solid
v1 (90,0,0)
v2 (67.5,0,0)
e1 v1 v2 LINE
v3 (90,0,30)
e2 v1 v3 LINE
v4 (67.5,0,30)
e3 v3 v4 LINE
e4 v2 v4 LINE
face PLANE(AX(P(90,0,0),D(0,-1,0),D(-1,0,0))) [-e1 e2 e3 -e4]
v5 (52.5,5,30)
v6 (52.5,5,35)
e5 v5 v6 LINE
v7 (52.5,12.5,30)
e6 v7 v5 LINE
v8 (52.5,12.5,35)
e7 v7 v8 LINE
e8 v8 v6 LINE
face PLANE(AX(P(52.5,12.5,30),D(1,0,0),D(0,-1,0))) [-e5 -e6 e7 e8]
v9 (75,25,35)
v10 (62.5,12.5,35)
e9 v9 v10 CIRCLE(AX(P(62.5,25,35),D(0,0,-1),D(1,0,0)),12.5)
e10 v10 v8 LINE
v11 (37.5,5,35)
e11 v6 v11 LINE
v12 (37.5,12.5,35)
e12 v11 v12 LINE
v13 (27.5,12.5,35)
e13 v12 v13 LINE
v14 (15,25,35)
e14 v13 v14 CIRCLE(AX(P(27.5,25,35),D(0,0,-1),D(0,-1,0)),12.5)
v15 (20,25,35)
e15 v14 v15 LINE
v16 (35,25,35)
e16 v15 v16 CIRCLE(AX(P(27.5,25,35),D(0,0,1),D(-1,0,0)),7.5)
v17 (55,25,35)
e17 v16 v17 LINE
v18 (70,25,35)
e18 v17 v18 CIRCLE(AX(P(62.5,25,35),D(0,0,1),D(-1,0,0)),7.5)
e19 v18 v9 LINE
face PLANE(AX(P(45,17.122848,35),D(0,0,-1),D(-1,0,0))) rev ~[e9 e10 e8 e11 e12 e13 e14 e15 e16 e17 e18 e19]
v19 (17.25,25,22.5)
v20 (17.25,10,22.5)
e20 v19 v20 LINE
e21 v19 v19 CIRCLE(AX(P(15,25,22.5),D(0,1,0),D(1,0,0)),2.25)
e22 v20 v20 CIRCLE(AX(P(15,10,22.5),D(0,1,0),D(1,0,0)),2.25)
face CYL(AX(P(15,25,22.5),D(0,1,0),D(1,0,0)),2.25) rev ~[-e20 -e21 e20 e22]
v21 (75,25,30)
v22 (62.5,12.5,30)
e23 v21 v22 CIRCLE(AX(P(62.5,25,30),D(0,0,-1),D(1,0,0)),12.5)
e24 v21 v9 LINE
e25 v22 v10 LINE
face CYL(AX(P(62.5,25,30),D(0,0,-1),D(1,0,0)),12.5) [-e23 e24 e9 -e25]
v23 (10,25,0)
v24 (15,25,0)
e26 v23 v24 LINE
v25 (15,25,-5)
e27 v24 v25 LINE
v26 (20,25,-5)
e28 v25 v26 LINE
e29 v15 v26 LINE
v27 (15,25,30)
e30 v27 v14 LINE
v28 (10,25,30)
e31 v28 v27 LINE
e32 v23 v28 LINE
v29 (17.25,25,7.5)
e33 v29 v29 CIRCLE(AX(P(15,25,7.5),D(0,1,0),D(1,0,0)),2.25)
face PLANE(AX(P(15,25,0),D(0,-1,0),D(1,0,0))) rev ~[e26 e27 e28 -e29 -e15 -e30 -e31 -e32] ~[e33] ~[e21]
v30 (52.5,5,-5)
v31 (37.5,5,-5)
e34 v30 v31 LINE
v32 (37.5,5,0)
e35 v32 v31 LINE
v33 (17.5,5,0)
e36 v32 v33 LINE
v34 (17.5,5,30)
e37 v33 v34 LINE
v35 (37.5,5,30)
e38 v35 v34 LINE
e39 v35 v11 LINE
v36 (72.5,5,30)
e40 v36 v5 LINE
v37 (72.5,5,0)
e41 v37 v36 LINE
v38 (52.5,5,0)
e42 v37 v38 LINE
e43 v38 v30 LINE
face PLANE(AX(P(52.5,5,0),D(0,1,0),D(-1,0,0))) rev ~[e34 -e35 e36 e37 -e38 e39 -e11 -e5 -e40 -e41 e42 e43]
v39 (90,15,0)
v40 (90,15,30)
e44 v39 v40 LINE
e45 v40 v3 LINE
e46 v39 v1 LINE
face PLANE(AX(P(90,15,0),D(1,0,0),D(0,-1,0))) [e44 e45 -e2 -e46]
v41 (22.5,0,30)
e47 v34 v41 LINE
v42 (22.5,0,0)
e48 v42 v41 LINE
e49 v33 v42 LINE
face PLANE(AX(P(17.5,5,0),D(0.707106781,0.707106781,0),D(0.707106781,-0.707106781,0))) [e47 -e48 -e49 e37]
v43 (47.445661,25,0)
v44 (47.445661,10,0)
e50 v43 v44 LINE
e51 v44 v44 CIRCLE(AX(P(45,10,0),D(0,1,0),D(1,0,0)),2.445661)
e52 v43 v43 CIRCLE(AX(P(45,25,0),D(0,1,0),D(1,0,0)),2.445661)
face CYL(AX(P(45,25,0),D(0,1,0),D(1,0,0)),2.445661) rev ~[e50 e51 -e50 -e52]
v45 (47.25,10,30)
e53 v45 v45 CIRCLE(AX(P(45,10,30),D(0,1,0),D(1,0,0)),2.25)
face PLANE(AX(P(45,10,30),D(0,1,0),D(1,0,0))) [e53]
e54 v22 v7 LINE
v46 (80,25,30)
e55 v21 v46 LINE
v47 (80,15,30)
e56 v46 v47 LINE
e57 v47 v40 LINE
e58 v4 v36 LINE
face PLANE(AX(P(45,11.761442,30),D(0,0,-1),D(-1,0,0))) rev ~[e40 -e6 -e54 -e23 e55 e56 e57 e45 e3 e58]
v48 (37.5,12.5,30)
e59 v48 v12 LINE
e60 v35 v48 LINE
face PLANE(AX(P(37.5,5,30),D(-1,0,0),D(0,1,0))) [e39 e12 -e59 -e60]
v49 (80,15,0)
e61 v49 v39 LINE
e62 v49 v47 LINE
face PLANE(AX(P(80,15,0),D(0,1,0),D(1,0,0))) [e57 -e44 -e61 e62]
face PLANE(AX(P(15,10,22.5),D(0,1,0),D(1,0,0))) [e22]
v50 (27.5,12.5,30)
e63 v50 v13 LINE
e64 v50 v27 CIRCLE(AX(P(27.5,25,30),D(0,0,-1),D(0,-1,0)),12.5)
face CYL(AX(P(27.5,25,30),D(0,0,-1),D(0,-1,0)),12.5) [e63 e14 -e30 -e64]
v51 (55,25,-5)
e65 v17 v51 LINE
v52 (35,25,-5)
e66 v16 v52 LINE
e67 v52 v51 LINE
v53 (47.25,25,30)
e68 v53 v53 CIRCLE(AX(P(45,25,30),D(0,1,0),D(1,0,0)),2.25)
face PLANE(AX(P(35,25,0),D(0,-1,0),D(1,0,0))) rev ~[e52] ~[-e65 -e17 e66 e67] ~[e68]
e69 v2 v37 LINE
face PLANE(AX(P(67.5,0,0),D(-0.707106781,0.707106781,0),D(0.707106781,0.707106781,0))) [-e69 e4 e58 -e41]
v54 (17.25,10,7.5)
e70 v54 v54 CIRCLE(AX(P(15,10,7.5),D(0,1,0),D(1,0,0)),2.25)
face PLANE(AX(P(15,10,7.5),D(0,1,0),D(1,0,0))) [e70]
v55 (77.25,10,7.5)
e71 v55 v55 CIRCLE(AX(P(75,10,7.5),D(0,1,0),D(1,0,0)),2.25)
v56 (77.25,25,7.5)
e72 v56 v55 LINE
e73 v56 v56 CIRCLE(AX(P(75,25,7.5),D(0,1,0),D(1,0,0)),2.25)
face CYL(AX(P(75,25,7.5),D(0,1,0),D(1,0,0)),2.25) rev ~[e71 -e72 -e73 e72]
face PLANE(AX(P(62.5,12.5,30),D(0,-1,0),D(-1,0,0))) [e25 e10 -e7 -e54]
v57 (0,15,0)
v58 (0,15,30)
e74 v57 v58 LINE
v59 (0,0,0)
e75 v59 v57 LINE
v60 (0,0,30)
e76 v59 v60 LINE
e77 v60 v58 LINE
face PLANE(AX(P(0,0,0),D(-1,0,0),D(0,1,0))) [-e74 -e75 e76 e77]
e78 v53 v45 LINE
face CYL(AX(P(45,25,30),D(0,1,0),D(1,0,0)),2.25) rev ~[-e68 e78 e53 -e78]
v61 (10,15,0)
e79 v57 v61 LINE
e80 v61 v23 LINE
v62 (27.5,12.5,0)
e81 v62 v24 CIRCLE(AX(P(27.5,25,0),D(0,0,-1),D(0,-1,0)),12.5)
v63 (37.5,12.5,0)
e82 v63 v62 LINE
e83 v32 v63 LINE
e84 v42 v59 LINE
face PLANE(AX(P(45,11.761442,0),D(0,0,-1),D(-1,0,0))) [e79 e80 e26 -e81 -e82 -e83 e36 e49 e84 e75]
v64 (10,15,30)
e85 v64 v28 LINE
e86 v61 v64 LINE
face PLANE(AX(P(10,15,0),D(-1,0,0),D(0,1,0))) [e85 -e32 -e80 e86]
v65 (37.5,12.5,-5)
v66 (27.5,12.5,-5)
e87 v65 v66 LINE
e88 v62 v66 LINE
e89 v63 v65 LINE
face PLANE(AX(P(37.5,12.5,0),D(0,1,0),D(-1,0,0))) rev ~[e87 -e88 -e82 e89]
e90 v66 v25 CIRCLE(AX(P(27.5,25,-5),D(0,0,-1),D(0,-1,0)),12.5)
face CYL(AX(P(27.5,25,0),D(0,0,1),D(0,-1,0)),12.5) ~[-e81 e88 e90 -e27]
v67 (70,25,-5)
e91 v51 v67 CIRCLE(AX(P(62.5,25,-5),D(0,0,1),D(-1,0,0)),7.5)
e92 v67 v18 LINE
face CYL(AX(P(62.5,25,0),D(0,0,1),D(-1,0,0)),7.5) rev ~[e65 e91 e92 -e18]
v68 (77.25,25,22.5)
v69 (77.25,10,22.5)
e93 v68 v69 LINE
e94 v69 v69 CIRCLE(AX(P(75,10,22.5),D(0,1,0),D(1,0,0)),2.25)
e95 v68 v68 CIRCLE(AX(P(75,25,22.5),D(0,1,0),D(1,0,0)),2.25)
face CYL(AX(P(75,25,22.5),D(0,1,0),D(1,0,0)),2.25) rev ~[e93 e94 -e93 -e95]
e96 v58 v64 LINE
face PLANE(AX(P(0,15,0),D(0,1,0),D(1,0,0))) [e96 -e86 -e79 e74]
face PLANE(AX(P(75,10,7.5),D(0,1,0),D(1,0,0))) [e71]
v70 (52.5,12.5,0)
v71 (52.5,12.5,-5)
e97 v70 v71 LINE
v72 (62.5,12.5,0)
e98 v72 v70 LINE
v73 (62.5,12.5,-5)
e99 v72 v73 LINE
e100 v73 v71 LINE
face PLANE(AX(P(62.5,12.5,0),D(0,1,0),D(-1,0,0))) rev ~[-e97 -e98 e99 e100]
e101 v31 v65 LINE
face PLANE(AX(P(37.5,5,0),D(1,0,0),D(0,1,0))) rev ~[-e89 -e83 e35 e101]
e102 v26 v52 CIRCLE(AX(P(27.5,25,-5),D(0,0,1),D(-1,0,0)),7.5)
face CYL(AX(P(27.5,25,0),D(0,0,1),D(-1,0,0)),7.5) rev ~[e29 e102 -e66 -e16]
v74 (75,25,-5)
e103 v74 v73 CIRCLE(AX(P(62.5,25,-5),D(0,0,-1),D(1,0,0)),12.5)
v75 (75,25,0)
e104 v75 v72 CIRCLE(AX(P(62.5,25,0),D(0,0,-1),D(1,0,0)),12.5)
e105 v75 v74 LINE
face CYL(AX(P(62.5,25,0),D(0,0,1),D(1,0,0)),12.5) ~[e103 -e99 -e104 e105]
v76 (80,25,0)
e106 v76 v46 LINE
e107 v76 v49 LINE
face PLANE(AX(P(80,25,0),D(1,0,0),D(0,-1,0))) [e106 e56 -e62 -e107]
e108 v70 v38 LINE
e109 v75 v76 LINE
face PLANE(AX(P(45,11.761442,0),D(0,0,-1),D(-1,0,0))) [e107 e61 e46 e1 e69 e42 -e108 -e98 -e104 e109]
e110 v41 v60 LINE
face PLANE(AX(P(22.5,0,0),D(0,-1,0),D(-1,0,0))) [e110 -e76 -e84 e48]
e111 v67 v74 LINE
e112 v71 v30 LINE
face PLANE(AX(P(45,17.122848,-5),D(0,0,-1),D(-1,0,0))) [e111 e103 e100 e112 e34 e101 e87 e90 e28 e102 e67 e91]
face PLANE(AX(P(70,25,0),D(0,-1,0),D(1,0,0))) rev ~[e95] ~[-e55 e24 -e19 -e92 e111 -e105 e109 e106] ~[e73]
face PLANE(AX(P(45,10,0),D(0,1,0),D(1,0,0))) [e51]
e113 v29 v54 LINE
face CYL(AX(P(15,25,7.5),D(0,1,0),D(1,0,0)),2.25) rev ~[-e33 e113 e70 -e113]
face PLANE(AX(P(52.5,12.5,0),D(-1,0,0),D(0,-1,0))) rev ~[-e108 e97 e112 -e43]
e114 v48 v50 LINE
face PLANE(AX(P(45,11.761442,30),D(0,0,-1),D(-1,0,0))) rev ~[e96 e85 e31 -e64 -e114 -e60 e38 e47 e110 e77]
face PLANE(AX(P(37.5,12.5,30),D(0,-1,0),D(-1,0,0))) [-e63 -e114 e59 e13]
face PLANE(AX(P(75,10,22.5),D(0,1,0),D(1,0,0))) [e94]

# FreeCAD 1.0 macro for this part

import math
import FreeCAD as App
import Part
import Sketcher
Q = App.Units.Quantity

doc = App.newDocument("Part")
body = doc.addObject("PartDesign::Body", "Body")

sketch1 = body.newObject("Sketcher::SketchObject", "Sketch")
sketch1.AttachmentSupport = (doc.getObject("XY_Plane"), [""])
sketch1.MapMode = "FlatFace"
sketch1.addGeometry(Part.LineSegment(App.Vector(0, 15, 0), App.Vector(0, 0, 0)), False)
sketch1.addGeometry(Part.LineSegment(App.Vector(0, 0, 0), App.Vector(22, 0, 0)), False)
sketch1.addGeometry(Part.LineSegment(App.Vector(22, 0, 0), App.Vector(18, 5, 0)), False)
sketch1.addGeometry(Part.LineSegment(App.Vector(18, 5, 0), App.Vector(72, 5, 0)), False)
sketch1.addGeometry(Part.LineSegment(App.Vector(72, 5, 0), App.Vector(68, 0, 0)), False)
sketch1.addGeometry(Part.LineSegment(App.Vector(68, 0, 0), App.Vector(90, 0, 0)), False)
sketch1.addGeometry(Part.LineSegment(App.Vector(90, 0, 0), App.Vector(90, 15, 0)), False)
sketch1.addGeometry(Part.LineSegment(App.Vector(90, 15, 0), App.Vector(80, 15, 0)), False)
sketch1.addGeometry(Part.LineSegment(App.Vector(80, 15, 0), App.Vector(80, 25, 0)), False)
sketch1.addGeometry(Part.LineSegment(App.Vector(80, 25, 0), App.Vector(70, 25, 0)), False)
sketch1.addGeometry(Part.ArcOfCircle(Part.Circle(App.Vector(62, 25, 0), App.Vector(0, 0, 1), 8), math.radians(180), math.radians(360)), False)
sketch1.addGeometry(Part.LineSegment(App.Vector(55, 25, 0), App.Vector(35, 25, 0)), False)
sketch1.addGeometry(Part.ArcOfCircle(Part.Circle(App.Vector(28, 25, 0), App.Vector(0, 0, 1), 8), math.radians(180), math.radians(360)), False)
sketch1.addGeometry(Part.LineSegment(App.Vector(20, 25, 0), App.Vector(10, 25, 0)), False)
sketch1.addGeometry(Part.LineSegment(App.Vector(10, 25, 0), App.Vector(10, 15, 0)), False)
sketch1.addGeometry(Part.LineSegment(App.Vector(10, 15, 0), App.Vector(0, 15, 0)), False)
sketch1.addConstraint(Sketcher.Constraint("Coincident", 0, 2, 1, 1))
sketch1.addConstraint(Sketcher.Constraint("Coincident", 1, 2, 2, 1))
sketch1.addConstraint(Sketcher.Constraint("Coincident", 2, 2, 3, 1))
sketch1.addConstraint(Sketcher.Constraint("Coincident", 3, 2, 4, 1))
sketch1.addConstraint(Sketcher.Constraint("Coincident", 4, 2, 5, 1))
sketch1.addConstraint(Sketcher.Constraint("Coincident", 5, 2, 6, 1))
sketch1.addConstraint(Sketcher.Constraint("Coincident", 6, 2, 7, 1))
sketch1.addConstraint(Sketcher.Constraint("Coincident", 7, 2, 8, 1))
sketch1.addConstraint(Sketcher.Constraint("Coincident", 8, 2, 9, 1))
sketch1.addConstraint(Sketcher.Constraint("Coincident", 9, 2, 10, 2))
sketch1.addConstraint(Sketcher.Constraint("Coincident", 10, 1, 11, 1))
sketch1.addConstraint(Sketcher.Constraint("Coincident", 11, 2, 12, 2))
sketch1.addConstraint(Sketcher.Constraint("Coincident", 12, 1, 13, 1))
sketch1.addConstraint(Sketcher.Constraint("Coincident", 13, 2, 14, 1))
sketch1.addConstraint(Sketcher.Constraint("Coincident", 14, 2, 15, 1))
sketch1.addConstraint(Sketcher.Constraint("Coincident", 15, 2, 0, 1))
sketch1.addConstraint(Sketcher.Constraint("Vertical", 0))
sketch1.addConstraint(Sketcher.Constraint("Horizontal", 1))
sketch1.addConstraint(Sketcher.Constraint("Horizontal", 3))
sketch1.addConstraint(Sketcher.Constraint("Horizontal", 5))
sketch1.addConstraint(Sketcher.Constraint("Vertical", 6))
sketch1.addConstraint(Sketcher.Constraint("Horizontal", 7))
sketch1.addConstraint(Sketcher.Constraint("Vertical", 8))
sketch1.addConstraint(Sketcher.Constraint("Horizontal", 9))
sketch1.addConstraint(Sketcher.Constraint("Horizontal", 11))
sketch1.addConstraint(Sketcher.Constraint("Horizontal", 13))
sketch1.addConstraint(Sketcher.Constraint("Vertical", 14))
sketch1.addConstraint(Sketcher.Constraint("Horizontal", 15))
sketch1.addConstraint(Sketcher.Constraint("Coincident", 0, 2, -1, 1))
sketch1.addConstraint(Sketcher.Constraint("Equal", 10, 12))
sketch1.addConstraint(Sketcher.Constraint("PointOnObject", 4, 2, -1))
sketch1.addConstraint(Sketcher.Constraint("Perpendicular", 2, 4))
sketch1.addConstraint(Sketcher.Constraint("Horizontal", 10, 3, 12, 3))
sketch1.addConstraint(Sketcher.Constraint("Horizontal", 12, 3, 8, 2))
sketch1.addConstraint(Sketcher.Constraint("Horizontal", 9, 2, 10, 1))
sketch1.addConstraint(Sketcher.Constraint("Horizontal", 11, 2, 12, 1))
sketch1.addConstraint(Sketcher.Constraint("Horizontal", 7, 2, 14, 2))
sketch1.addConstraint(Sketcher.Constraint("Equal", 1, 5))
sketch1.addConstraint(Sketcher.Constraint("Equal", 7, 9))
sketch1.addConstraint(Sketcher.Constraint("Equal", 9, 13))
sketch1.addConstraint(Sketcher.Constraint("Equal", 13, 15))
sketch1.addConstraint(Sketcher.Constraint("Equal", 15, 8))
sketch1.addConstraint(Sketcher.Constraint("Equal", 2, 4))
sketch1.addConstraint(Sketcher.Constraint("Radius", 10, Q("7.5 mm")))
sketch1.addConstraint(Sketcher.Constraint("DistanceX", 3, 1, 3, 2, Q("55 mm")))
sketch1.addConstraint(Sketcher.Constraint("DistanceX", 7, 2, 7, 1, Q("10 mm")))
sketch1.addConstraint(Sketcher.Constraint("DistanceX", 11, 2, 11, 1, Q("20 mm")))
sketch1.addConstraint(Sketcher.Constraint("DistanceY", 0, 2, 0, 1, Q("15 mm")))
sketch1.addConstraint(Sketcher.Constraint("DistanceX", 1, 1, 1, 2, Q("22.5 mm")))
pad1 = body.newObject("PartDesign::Pad", "Pad")
pad1.Profile = sketch1
pad1.Length = 30

sketch2 = body.newObject("Sketcher::SketchObject", "Sketch001")
sketch2.AttachmentSupport = (doc.getObject("XY_Plane"), [""])
sketch2.MapMode = "FlatFace"
sketch2.AttachmentOffset = App.Placement(App.Vector(0, 0, 30), App.Rotation())
sketch2.addGeometry(Part.LineSegment(App.Vector(75, 25, 0), App.Vector(70, 25, 0)), False)
sketch2.addGeometry(Part.ArcOfCircle(Part.Circle(App.Vector(62, 25, 0), App.Vector(0, 0, 1), 8), math.radians(180), math.radians(360)), False)
sketch2.addGeometry(Part.LineSegment(App.Vector(55, 25, 0), App.Vector(35, 25, 0)), False)
sketch2.addGeometry(Part.ArcOfCircle(Part.Circle(App.Vector(28, 25, 0), App.Vector(0, 0, 1), 8), math.radians(180), math.radians(360)), False)
sketch2.addGeometry(Part.LineSegment(App.Vector(20, 25, 0), App.Vector(15, 25, 0)), False)
sketch2.addGeometry(Part.ArcOfCircle(Part.Circle(App.Vector(27, 25, 0), App.Vector(0, 0, 1), 12), math.radians(180), math.radians(270)), False)
sketch2.addGeometry(Part.LineSegment(App.Vector(28, 12, 0), App.Vector(38, 12, 0)), False)
sketch2.addGeometry(Part.LineSegment(App.Vector(38, 12, 0), App.Vector(38, 5, 0)), False)
sketch2.addGeometry(Part.LineSegment(App.Vector(38, 5, 0), App.Vector(52, 5, 0)), False)
sketch2.addGeometry(Part.LineSegment(App.Vector(52, 5, 0), App.Vector(52, 12, 0)), False)
sketch2.addGeometry(Part.LineSegment(App.Vector(52, 12, 0), App.Vector(62, 12, 0)), False)
sketch2.addGeometry(Part.ArcOfCircle(Part.Circle(App.Vector(63, 25, 0), App.Vector(0, 0, 1), 12), math.radians(-90), math.radians(0)), False)
sketch2.addConstraint(Sketcher.Constraint("Coincident", 0, 2, 1, 2))
sketch2.addConstraint(Sketcher.Constraint("Coincident", 1, 1, 2, 1))
sketch2.addConstraint(Sketcher.Constraint("Coincident", 2, 2, 3, 2))
sketch2.addConstraint(Sketcher.Constraint("Coincident", 3, 1, 4, 1))
sketch2.addConstraint(Sketcher.Constraint("Coincident", 4, 2, 5, 1))
sketch2.addConstraint(Sketcher.Constraint("Tangent", 5, 2, 6, 1))
sketch2.addConstraint(Sketcher.Constraint("Coincident", 6, 2, 7, 1))
sketch2.addConstraint(Sketcher.Constraint("Coincident", 7, 2, 8, 1))
sketch2.addConstraint(Sketcher.Constraint("Coincident", 8, 2, 9, 1))
sketch2.addConstraint(Sketcher.Constraint("Coincident", 9, 2, 10, 1))
sketch2.addConstraint(Sketcher.Constraint("Tangent", 10, 2, 11, 1))
sketch2.addConstraint(Sketcher.Constraint("Coincident", 11, 2, 0, 1))
sketch2.addConstraint(Sketcher.Constraint("Horizontal", 0))
sketch2.addConstraint(Sketcher.Constraint("Horizontal", 2))
sketch2.addConstraint(Sketcher.Constraint("Horizontal", 4))
sketch2.addConstraint(Sketcher.Constraint("Horizontal", 6))
sketch2.addConstraint(Sketcher.Constraint("Vertical", 7))
sketch2.addConstraint(Sketcher.Constraint("Horizontal", 8))
sketch2.addConstraint(Sketcher.Constraint("Vertical", 9))
sketch2.addConstraint(Sketcher.Constraint("Horizontal", 10))
sketch2.addConstraint(Sketcher.Constraint("Coincident", 5, 3, 3, 3))
sketch2.addConstraint(Sketcher.Constraint("Coincident", 11, 3, 1, 3))
sketch2.addConstraint(Sketcher.Constraint("Equal", 1, 3))
sketch2.addConstraint(Sketcher.Constraint("Equal", 5, 11))
sketch2.addConstraint(Sketcher.Constraint("Horizontal", 1, 3, 3, 3))
sketch2.addConstraint(Sketcher.Constraint("Horizontal", 11, 3, 0, 2))
sketch2.addConstraint(Sketcher.Constraint("Horizontal", 0, 2, 1, 1))
sketch2.addConstraint(Sketcher.Constraint("Horizontal", 2, 2, 3, 1))
sketch2.addConstraint(Sketcher.Constraint("Equal", 6, 10))
sketch2.addConstraint(Sketcher.Constraint("Radius", 1, Q("7.5 mm")))
sketch2.addConstraint(Sketcher.Constraint("Radius", 5, Q("12.5 mm")))
sketch2.addConstraint(Sketcher.Constraint("DistanceX", 2, 2, 2, 1, Q("20 mm")))
sketch2.addConstraint(Sketcher.Constraint("DistanceX", 6, 1, 6, 2, Q("10 mm")))
sketch2.addConstraint(Sketcher.Constraint("DistanceY", 7, 2, 7, 1, Q("7.5 mm")))
sketch2.addConstraint(Sketcher.Constraint("DistanceY", -1, 1, 1, 3, Q("25 mm")))
sketch2.addConstraint(Sketcher.Constraint("DistanceX", -1, 1, 0, 2, Q("70 mm")))
pad2 = body.newObject("PartDesign::Pad", "Pad001")
pad2.Profile = sketch2
pad2.Length = 5

sketch3 = body.newObject("Sketcher::SketchObject", "Sketch002")
sketch3.AttachmentSupport = (doc.getObject("XY_Plane"), [""])
sketch3.MapMode = "FlatFace"
sketch3.addGeometry(Part.LineSegment(App.Vector(62, 12, 0), App.Vector(52, 12, 0)), False)
sketch3.addGeometry(Part.LineSegment(App.Vector(52, 12, 0), App.Vector(52, 5, 0)), False)
sketch3.addGeometry(Part.LineSegment(App.Vector(52, 5, 0), App.Vector(38, 5, 0)), False)
sketch3.addGeometry(Part.LineSegment(App.Vector(38, 5, 0), App.Vector(38, 12, 0)), False)
sketch3.addGeometry(Part.LineSegment(App.Vector(38, 12, 0), App.Vector(28, 12, 0)), False)
sketch3.addGeometry(Part.ArcOfCircle(Part.Circle(App.Vector(27, 25, 0), App.Vector(0, 0, 1), 12), math.radians(180), math.radians(270)), False)
sketch3.addGeometry(Part.LineSegment(App.Vector(15, 25, 0), App.Vector(20, 25, 0)), False)
sketch3.addGeometry(Part.ArcOfCircle(Part.Circle(App.Vector(28, 25, 0), App.Vector(0, 0, 1), 8), math.radians(180), math.radians(360)), False)
sketch3.addGeometry(Part.LineSegment(App.Vector(35, 25, 0), App.Vector(55, 25, 0)), False)
sketch3.addGeometry(Part.ArcOfCircle(Part.Circle(App.Vector(62, 25, 0), App.Vector(0, 0, 1), 8), math.radians(180), math.radians(360)), False)
sketch3.addGeometry(Part.LineSegment(App.Vector(70, 25, 0), App.Vector(75, 25, 0)), False)
sketch3.addGeometry(Part.ArcOfCircle(Part.Circle(App.Vector(63, 25, 0), App.Vector(0, 0, 1), 12), math.radians(-90), math.radians(0)), False)
sketch3.addConstraint(Sketcher.Constraint("Coincident", 0, 2, 1, 1))
sketch3.addConstraint(Sketcher.Constraint("Coincident", 1, 2, 2, 1))
sketch3.addConstraint(Sketcher.Constraint("Coincident", 2, 2, 3, 1))
sketch3.addConstraint(Sketcher.Constraint("Coincident", 3, 2, 4, 1))
sketch3.addConstraint(Sketcher.Constraint("Tangent", 4, 2, 5, 2))
sketch3.addConstraint(Sketcher.Constraint("Coincident", 5, 1, 6, 1))
sketch3.addConstraint(Sketcher.Constraint("Coincident", 6, 2, 7, 1))
sketch3.addConstraint(Sketcher.Constraint("Coincident", 7, 2, 8, 1))
sketch3.addConstraint(Sketcher.Constraint("Coincident", 8, 2, 9, 1))
sketch3.addConstraint(Sketcher.Constraint("Coincident", 9, 2, 10, 1))
sketch3.addConstraint(Sketcher.Constraint("Coincident", 10, 2, 11, 2))
sketch3.addConstraint(Sketcher.Constraint("Tangent", 11, 1, 0, 1))
sketch3.addConstraint(Sketcher.Constraint("Horizontal", 0))
sketch3.addConstraint(Sketcher.Constraint("Vertical", 1))
sketch3.addConstraint(Sketcher.Constraint("Horizontal", 2))
sketch3.addConstraint(Sketcher.Constraint("Vertical", 3))
sketch3.addConstraint(Sketcher.Constraint("Horizontal", 4))
sketch3.addConstraint(Sketcher.Constraint("Horizontal", 6))
sketch3.addConstraint(Sketcher.Constraint("Horizontal", 8))
sketch3.addConstraint(Sketcher.Constraint("Horizontal", 10))
sketch3.addConstraint(Sketcher.Constraint("Coincident", 7, 3, 5, 3))
sketch3.addConstraint(Sketcher.Constraint("Coincident", 11, 3, 9, 3))
sketch3.addConstraint(Sketcher.Constraint("Equal", 7, 9))
sketch3.addConstraint(Sketcher.Constraint("Equal", 5, 11))
sketch3.addConstraint(Sketcher.Constraint("Horizontal", 7, 3, 9, 3))
sketch3.addConstraint(Sketcher.Constraint("Horizontal", 11, 3, 5, 1))
sketch3.addConstraint(Sketcher.Constraint("Horizontal", 6, 2, 7, 2))
sketch3.addConstraint(Sketcher.Constraint("Horizontal", 8, 2, 9, 2))
sketch3.addConstraint(Sketcher.Constraint("Equal", 0, 4))
sketch3.addConstraint(Sketcher.Constraint("Radius", 5, Q("12.5 mm")))
sketch3.addConstraint(Sketcher.Constraint("Radius", 7, Q("7.5 mm")))
sketch3.addConstraint(Sketcher.Constraint("DistanceX", 0, 2, 0, 1, Q("10 mm")))
sketch3.addConstraint(Sketcher.Constraint("DistanceX", 2, 2, 2, 1, Q("15 mm")))
sketch3.addConstraint(Sketcher.Constraint("DistanceY", 1, 2, 1, 1, Q("7.5 mm")))
sketch3.addConstraint(Sketcher.Constraint("DistanceY", -1, 1, 5, 3, Q("25 mm")))
sketch3.addConstraint(Sketcher.Constraint("DistanceX", -1, 1, 5, 1, Q("15 mm")))
pad3 = body.newObject("PartDesign::Pad", "Pad002")
pad3.Profile = sketch3
pad3.Length = 5
pad3.Reversed = True

sketch4 = body.newObject("Sketcher::SketchObject", "Sketch003")
sketch4.AttachmentSupport = (doc.getObject("XZ_Plane"), [""])
sketch4.MapMode = "FlatFace"
sketch4.AttachmentOffset = App.Placement(App.Vector(0, 0, -25), App.Rotation())
sketch4.addGeometry(Part.Circle(App.Vector(75, 7.5, 0), App.Vector(0, 0, 1), 2.2), False)
sketch4.addGeometry(Part.Circle(App.Vector(75, 22.5, 0), App.Vector(0, 0, 1), 2.2), False)
sketch4.addGeometry(Part.Circle(App.Vector(15, 22.5, 0), App.Vector(0, 0, 1), 2.2), False)
sketch4.addGeometry(Part.Circle(App.Vector(15, 7.5, 0), App.Vector(0, 0, 1), 2.2), False)
sketch4.addGeometry(Part.Circle(App.Vector(45, 0, 0), App.Vector(0, 0, 1), 2.4), False)
sketch4.addGeometry(Part.Circle(App.Vector(45, 30, 0), App.Vector(0, 0, 1), 2.2), False)
sketch4.addConstraint(Sketcher.Constraint("Equal", 0, 1))
sketch4.addConstraint(Sketcher.Constraint("Equal", 1, 2))
sketch4.addConstraint(Sketcher.Constraint("Equal", 2, 3))
sketch4.addConstraint(Sketcher.Constraint("Equal", 3, 5))
sketch4.addConstraint(Sketcher.Constraint("PointOnObject", 4, 3, -1))
sketch4.addConstraint(Sketcher.Constraint("Horizontal", 1, 3, 2, 3))
sketch4.addConstraint(Sketcher.Constraint("Horizontal", 0, 3, 3, 3))
sketch4.addConstraint(Sketcher.Constraint("Vertical", 0, 3, 1, 3))
sketch4.addConstraint(Sketcher.Constraint("Vertical", 2, 3, 3, 3))
sketch4.addConstraint(Sketcher.Constraint("Vertical", 4, 3, 5, 3))
sketch4.addConstraint(Sketcher.Constraint("Diameter", 0, Q("4.5 mm")))
sketch4.addConstraint(Sketcher.Constraint("DistanceX", -1, 1, 0, 3, Q("75 mm")))
sketch4.addConstraint(Sketcher.Constraint("DistanceX", -1, 1, 2, 3, Q("15 mm")))
sketch4.addConstraint(Sketcher.Constraint("DistanceX", -1, 1, 4, 3, Q("45 mm")))
sketch4.addConstraint(Sketcher.Constraint("DistanceY", -1, 1, 5, 3, Q("30 mm")))
sketch4.addConstraint(Sketcher.Constraint("DistanceY", 0, 3, 1, 3, Q("15 mm")))
sketch4.addConstraint(Sketcher.Constraint("DistanceY", -1, 1, 0, 3, Q("7.5 mm")))
sketch4.addConstraint(Sketcher.Constraint("Diameter", 4, Q("4.891323 mm")))
pocket1 = body.newObject("PartDesign::Pocket", "Pocket")
pocket1.Profile = sketch4
pocket1.Length = 15
pocket1.Reversed = True

doc.recompute()
